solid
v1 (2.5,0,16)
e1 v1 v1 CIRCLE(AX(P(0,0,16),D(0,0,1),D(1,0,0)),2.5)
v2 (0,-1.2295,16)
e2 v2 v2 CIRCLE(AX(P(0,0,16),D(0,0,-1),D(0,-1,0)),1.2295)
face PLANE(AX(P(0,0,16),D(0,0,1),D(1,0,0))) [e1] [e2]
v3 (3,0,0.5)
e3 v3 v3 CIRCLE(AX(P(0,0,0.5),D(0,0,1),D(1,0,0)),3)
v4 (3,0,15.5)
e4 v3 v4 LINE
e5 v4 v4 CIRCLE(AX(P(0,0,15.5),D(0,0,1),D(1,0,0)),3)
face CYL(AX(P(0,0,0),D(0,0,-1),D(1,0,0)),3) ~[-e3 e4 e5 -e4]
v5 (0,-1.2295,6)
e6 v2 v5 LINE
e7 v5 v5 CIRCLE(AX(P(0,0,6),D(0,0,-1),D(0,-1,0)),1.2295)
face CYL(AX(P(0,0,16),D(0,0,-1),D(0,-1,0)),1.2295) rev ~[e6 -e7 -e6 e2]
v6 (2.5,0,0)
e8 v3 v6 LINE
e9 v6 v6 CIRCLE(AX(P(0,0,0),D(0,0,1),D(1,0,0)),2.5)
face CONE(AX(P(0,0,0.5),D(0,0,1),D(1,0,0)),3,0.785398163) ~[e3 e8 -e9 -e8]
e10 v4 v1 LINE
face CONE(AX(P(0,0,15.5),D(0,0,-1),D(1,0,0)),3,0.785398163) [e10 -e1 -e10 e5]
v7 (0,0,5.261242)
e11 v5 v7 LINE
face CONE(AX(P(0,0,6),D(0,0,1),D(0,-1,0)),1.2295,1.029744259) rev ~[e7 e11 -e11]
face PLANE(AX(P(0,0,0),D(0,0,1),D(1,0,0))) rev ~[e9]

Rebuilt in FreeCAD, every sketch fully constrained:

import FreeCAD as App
import Part
import Sketcher

V = App.Vector
Q = App.Units.Quantity


def edges_at(feature, points):
    """Names of the edges that pass closest to the given points."""
    edges = feature.Shape.Edges
    near = lambda p: min(range(len(edges)), key=lambda i: edges[i].distToShape(Part.Vertex(*p))[0])
    return sorted({f"Edge{near(p) + 1}" for p in points})

doc = App.newDocument("Part")
params = doc.addObject("Spreadsheet::Sheet", "Params")
for row, (alias, value) in enumerate([
    ("sketch1_diameter", "6 mm"),
    ("pad1_length", "16 mm"),
    ("chamfer_size", "0.5 mm"),
    ("hole_diameter", "2.459 mm"),
    ("hole_depth", "10 mm"),
], start=1):
    params.set(f"A{row}", alias)
    params.set(f"B{row}", "=" + value)
    params.setAlias(f"B{row}", alias)

body = doc.addObject("PartDesign::Body", "Body")

sketch1 = body.newObject("Sketcher::SketchObject", "Sketch")
sketch1.AttachmentSupport = (doc.getObject("XY_Plane"), [""])
sketch1.MapMode = "FlatFace"
sketch1.addGeometry(Part.Circle(V(0, 0, 0), V(0, 0, 1), 3), False)
sketch1.addConstraint(Sketcher.Constraint("Coincident", 0, 3, -1, 1))
sketch1.addConstraint(Sketcher.Constraint("Diameter", 0, Q("6 mm")))
sketch1.setExpression("Constraints[1]", "Params.sketch1_diameter")
pad1 = body.newObject("PartDesign::Pad", "Pad")
pad1.Profile = sketch1
pad1.setExpression("Length", "Params.pad1_length")
doc.recompute()

chamfer = body.newObject("PartDesign::Chamfer", "Chamfer")
chamfer.Base = (pad1, edges_at(pad1, [(-3, 0, 16), (-3, 0, 0)]))
chamfer.setExpression("Size", "Params.chamfer_size")

sketch2 = body.newObject("Sketcher::SketchObject", "Sketch001")
sketch2.AttachmentSupport = (doc.getObject("XY_Plane"), [""])
sketch2.MapMode = "FlatFace"
sketch2.AttachmentOffset = App.Placement(V(0, 0, 16), App.Rotation())
sketch2.addGeometry(Part.Circle(V(0, 0, 0), V(0, 0, 1), 1.2), False)
sketch2.addConstraint(Sketcher.Constraint("Coincident", 0, 3, -1, 1))
sketch2.addConstraint(Sketcher.Constraint("Diameter", 0, Q("2.459 mm")))
doc.recompute()
hole = body.newObject("PartDesign::Hole", "Hole")
hole.Profile = sketch2
hole.ThreadType = "None"
hole.setExpression("Diameter", "Params.hole_diameter")
hole.DepthType = "Dimension"
hole.setExpression("Depth", "Params.hole_depth")
hole.DrillPoint = "Angled"
hole.DrillPointAngle = 118

doc.recompute()
